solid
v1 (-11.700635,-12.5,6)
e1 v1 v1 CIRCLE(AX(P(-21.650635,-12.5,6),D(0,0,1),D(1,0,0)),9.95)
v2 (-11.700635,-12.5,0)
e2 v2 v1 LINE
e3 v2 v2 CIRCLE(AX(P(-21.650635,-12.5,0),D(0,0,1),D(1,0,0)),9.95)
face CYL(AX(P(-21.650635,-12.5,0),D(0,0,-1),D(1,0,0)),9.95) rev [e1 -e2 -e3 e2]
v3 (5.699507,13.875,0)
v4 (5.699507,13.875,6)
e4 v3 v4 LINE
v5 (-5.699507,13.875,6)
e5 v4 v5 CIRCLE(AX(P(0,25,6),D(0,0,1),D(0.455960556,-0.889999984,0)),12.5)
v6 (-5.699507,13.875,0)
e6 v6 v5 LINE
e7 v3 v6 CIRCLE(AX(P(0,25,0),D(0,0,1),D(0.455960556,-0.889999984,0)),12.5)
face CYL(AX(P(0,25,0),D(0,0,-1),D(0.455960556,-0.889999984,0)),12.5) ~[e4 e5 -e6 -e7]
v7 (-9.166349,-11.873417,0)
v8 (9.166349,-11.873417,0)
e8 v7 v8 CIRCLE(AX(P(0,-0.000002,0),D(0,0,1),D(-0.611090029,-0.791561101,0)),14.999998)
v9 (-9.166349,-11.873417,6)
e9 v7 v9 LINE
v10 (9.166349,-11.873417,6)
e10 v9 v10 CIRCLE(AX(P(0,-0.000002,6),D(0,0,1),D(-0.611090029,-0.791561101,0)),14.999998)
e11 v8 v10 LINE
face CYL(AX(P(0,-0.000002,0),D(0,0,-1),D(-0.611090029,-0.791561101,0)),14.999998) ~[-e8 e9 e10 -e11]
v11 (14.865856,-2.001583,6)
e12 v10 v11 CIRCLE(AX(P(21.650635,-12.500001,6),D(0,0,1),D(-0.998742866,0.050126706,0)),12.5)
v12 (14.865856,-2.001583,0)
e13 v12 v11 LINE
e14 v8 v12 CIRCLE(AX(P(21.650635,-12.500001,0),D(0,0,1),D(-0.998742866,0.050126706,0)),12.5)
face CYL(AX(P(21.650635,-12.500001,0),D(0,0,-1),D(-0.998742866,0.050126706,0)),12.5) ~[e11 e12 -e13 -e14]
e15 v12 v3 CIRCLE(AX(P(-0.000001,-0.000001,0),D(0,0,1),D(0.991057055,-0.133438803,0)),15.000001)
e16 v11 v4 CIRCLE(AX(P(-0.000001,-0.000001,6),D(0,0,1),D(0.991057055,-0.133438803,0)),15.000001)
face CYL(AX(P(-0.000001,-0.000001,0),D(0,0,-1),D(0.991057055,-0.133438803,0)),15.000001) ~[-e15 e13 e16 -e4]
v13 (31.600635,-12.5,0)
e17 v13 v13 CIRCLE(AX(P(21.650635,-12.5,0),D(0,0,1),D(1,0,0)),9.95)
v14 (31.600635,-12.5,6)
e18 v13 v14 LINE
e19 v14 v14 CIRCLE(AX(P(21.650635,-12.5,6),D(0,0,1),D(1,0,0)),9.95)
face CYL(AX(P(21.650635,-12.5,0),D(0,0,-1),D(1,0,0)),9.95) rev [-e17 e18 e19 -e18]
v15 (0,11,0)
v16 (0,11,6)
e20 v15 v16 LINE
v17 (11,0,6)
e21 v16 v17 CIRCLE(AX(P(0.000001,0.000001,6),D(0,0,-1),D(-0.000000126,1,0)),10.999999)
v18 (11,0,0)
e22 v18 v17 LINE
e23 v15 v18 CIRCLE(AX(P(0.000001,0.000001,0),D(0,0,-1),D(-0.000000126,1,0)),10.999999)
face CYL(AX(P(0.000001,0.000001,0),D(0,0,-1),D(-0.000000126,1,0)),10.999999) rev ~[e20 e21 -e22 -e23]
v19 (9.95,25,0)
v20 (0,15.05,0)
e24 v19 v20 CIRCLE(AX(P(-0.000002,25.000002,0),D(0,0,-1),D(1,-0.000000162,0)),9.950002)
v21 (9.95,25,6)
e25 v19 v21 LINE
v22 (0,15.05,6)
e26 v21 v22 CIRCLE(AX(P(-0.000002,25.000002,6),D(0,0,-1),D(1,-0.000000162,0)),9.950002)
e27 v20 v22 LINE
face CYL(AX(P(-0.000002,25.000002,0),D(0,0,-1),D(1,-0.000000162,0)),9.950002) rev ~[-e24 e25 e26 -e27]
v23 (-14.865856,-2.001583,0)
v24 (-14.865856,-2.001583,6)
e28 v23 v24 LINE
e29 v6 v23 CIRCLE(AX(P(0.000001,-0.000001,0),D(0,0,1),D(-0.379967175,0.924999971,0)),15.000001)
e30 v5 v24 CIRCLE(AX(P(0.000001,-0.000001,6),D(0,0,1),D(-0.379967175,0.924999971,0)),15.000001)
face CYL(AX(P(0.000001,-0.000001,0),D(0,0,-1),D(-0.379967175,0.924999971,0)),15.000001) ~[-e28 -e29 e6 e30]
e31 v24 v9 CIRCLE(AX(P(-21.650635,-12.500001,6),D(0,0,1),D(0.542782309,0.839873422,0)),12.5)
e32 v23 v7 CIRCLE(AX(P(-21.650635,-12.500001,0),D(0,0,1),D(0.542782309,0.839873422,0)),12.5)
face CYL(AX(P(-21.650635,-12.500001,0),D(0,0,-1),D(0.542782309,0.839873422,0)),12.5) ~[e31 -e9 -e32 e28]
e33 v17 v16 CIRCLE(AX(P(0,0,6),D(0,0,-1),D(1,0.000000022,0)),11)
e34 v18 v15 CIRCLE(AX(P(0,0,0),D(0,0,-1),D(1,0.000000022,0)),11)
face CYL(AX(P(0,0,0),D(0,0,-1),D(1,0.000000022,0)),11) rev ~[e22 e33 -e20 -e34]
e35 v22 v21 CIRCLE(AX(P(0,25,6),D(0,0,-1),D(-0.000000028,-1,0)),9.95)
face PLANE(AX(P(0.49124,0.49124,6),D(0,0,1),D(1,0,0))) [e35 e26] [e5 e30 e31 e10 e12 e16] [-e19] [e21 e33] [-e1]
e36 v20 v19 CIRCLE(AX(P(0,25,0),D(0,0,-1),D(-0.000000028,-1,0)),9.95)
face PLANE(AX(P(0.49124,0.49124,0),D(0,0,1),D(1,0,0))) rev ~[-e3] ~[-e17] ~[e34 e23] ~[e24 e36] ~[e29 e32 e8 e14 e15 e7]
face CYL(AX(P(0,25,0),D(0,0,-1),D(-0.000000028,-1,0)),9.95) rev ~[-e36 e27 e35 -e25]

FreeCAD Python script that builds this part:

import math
import FreeCAD as App
import Part
import Sketcher
from FreeCAD import Vector

doc = App.newDocument("Part")
body = doc.addObject("PartDesign::Body", "Body")

# Sketch on XY plane
sketch1 = body.newObject("Sketcher::SketchObject", "Sketch")
sketch1.AttachmentSupport = (doc.getObject("XY_Plane"), [""])
sketch1.MapMode = "FlatFace"
sketch1.addGeometry(Part.ArcOfCircle(Part.Circle(Vector(22, -13, 0), Vector(0, 0, 1), 13), math.radians(177), math.radians(483)), False)
sketch1.addGeometry(Part.ArcOfCircle(Part.Circle(Vector(0, 0, 0), Vector(0, 0, 1), 15), math.radians(-8), math.radians(68)), False)
sketch1.addGeometry(Part.ArcOfCircle(Part.Circle(Vector(0, 25, 0), Vector(0, 0, 1), 13), math.radians(-63), math.radians(243)), False)
sketch1.addGeometry(Part.ArcOfCircle(Part.Circle(Vector(0, 0, 0), Vector(0, 0, 1), 15), math.radians(112), math.radians(188)), False)
sketch1.addGeometry(Part.ArcOfCircle(Part.Circle(Vector(-22, -13, 0), Vector(0, 0, 1), 13), math.radians(57), math.radians(363)), False)
sketch1.addGeometry(Part.ArcOfCircle(Part.Circle(Vector(0, 0, 0), Vector(0, 0, 1), 15), math.radians(-128), math.radians(-52)), False)
sketch1.addGeometry(Part.Circle(Vector(-22, -12, 0), Vector(0, 0, 1), 10), False)
sketch1.addGeometry(Part.ArcOfCircle(Part.Circle(Vector(0, 0, 0), Vector(0, 0, 1), 11), math.radians(90), math.radians(360)), False)
sketch1.addGeometry(Part.ArcOfCircle(Part.Circle(Vector(0, 0, 0), Vector(0, 0, 1), 11), math.radians(0), math.radians(90)), False)
sketch1.addGeometry(Part.Circle(Vector(22, -12, 0), Vector(0, 0, 1), 10), False)
sketch1.addGeometry(Part.ArcOfCircle(Part.Circle(Vector(0, 25, 0), Vector(0, 0, 1), 10), math.radians(0), math.radians(270)), False)
sketch1.addGeometry(Part.ArcOfCircle(Part.Circle(Vector(0, 25, 0), Vector(0, 0, 1), 10), math.radians(-90), math.radians(0)), False)
sketch1.addConstraint(Sketcher.Constraint("Coincident", 0, 2, 1, 1))
sketch1.addConstraint(Sketcher.Constraint("Coincident", 1, 2, 2, 1))
sketch1.addConstraint(Sketcher.Constraint("Coincident", 2, 2, 3, 1))
sketch1.addConstraint(Sketcher.Constraint("Coincident", 3, 2, 4, 1))
sketch1.addConstraint(Sketcher.Constraint("Coincident", 4, 2, 5, 1))
sketch1.addConstraint(Sketcher.Constraint("Coincident", 5, 2, 0, 1))
sketch1.addConstraint(Sketcher.Constraint("Tangent", 7, 1, 8, 2))
sketch1.addConstraint(Sketcher.Constraint("Coincident", 8, 1, 7, 2))
sketch1.addConstraint(Sketcher.Constraint("Tangent", 10, 1, 11, 2))
sketch1.addConstraint(Sketcher.Constraint("Coincident", 11, 1, 10, 2))
sketch1.addConstraint(Sketcher.Constraint("Coincident", 1, 3, -1, 1))
sketch1.addConstraint(Sketcher.Constraint("Coincident", 3, 3, -1, 1))
sketch1.addConstraint(Sketcher.Constraint("Coincident", 5, 3, -1, 1))
sketch1.addConstraint(Sketcher.Constraint("Coincident", 7, 3, -1, 1))
sketch1.addConstraint(Sketcher.Constraint("Coincident", 6, 3, 4, 3))
sketch1.addConstraint(Sketcher.Constraint("Coincident", 9, 3, 0, 3))
sketch1.addConstraint(Sketcher.Constraint("Coincident", 10, 3, 2, 3))
sketch1.addConstraint(Sketcher.Constraint("Equal", 0, 2))
sketch1.addConstraint(Sketcher.Constraint("Equal", 1, 3))
sketch1.addConstraint(Sketcher.Constraint("Equal", 2, 4))
sketch1.addConstraint(Sketcher.Constraint("Equal", 6, 9))
sketch1.addConstraint(Sketcher.Constraint("Equal", 9, 10))
sketch1.addConstraint(Sketcher.Constraint("Symmetric", 0, 3, 4, 3, -2))
sketch1.addConstraint(Sketcher.Constraint("PointOnObject", 2, 3, -2))
sketch1.addConstraint(Sketcher.Constraint("PointOnObject", 7, 1, -2))
sketch1.addConstraint(Sketcher.Constraint("PointOnObject", 8, 1, -1))
sketch1.addConstraint(Sketcher.Constraint("PointOnObject", 11, 1, -2))
sketch1.addConstraint(Sketcher.Constraint("Horizontal", 11, 3, 10, 1))
sketch1.addConstraint(Sketcher.Constraint("Radius", 1, 15.000001))
sketch1.addConstraint(Sketcher.Constraint("Radius", 7, 11.0))
sketch1.addConstraint(Sketcher.Constraint("Diameter", 6, 19.9))
sketch1.addConstraint(Sketcher.Constraint("Radius", 0, 12.5))
sketch1.addConstraint(Sketcher.Constraint("DistanceY", -1, 1, 2, 3, 25.0))
sketch1.addConstraint(Sketcher.Constraint("DistanceY", 0, 3, -1, 1, 12.500001))
sketch1.addConstraint(Sketcher.Constraint("Radius", 5, 14.999998))
sketch1.addConstraint(Sketcher.Constraint("DistanceX", 4, 2, -1, 1, 9.166349))
pad1 = body.newObject("PartDesign::Pad", "Pad")
pad1.Profile = sketch1
pad1.Length = 6

doc.recompute()
